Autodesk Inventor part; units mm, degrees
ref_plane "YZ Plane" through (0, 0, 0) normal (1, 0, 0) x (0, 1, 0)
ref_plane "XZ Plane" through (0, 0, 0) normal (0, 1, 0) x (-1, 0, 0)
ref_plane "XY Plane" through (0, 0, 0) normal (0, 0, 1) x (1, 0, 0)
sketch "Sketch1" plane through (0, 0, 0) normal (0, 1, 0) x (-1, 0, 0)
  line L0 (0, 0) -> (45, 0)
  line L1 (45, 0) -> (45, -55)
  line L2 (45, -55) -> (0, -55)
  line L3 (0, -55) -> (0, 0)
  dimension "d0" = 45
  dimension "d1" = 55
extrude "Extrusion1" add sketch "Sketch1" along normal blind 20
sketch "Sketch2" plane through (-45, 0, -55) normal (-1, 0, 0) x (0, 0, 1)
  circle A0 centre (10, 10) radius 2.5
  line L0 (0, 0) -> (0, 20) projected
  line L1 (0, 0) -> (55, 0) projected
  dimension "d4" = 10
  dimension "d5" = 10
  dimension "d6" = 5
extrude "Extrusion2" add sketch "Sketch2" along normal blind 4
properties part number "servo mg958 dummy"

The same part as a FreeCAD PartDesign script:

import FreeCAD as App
import Part
import Sketcher

V = App.Vector
Q = App.Units.Quantity


def add_polygon(sketch, points):
    """Adds a closed chain of lines whose ends are joined by coincident constraints."""
    first, n = sketch.GeometryCount, len(points)
    for a, b in zip(points, points[1:] + points[:1]):
        sketch.addGeometry(Part.LineSegment(App.Vector(*a, 0), App.Vector(*b, 0)), False)
    for i in range(n):
        sketch.addConstraint(Sketcher.Constraint("Coincident", first + i, 2, first + (i + 1) % n, 1))

doc = App.newDocument("Part")
params = doc.addObject("Spreadsheet::Sheet", "Params")
for row, (alias, value) in enumerate([
    ("sketch1_width", "45 mm"),
    ("sketch1_height", "55 mm"),
    ("pad1_length", "20 mm"),
    ("sketch2_diameter", "5 mm"),
    ("pad2_length", "4 mm"),
], start=1):
    params.set(f"A{row}", alias)
    params.set(f"B{row}", "=" + value)
    params.setAlias(f"B{row}", alias)

body = doc.addObject("PartDesign::Body", "Body")

# Sketch on XZ plane
sketch1 = body.newObject("Sketcher::SketchObject", "Sketch")
sketch1.AttachmentSupport = (doc.getObject("XZ_Plane"), [""])
sketch1.MapMode = "FlatFace"
add_polygon(sketch1, [(-45, 0), (0, 0), (0, -55), (-45, -55)])  # lines 0-3
sketch1.addConstraint([
    Sketcher.Constraint("Horizontal", 0),
    Sketcher.Constraint("Vertical", 1),
    Sketcher.Constraint("Horizontal", 2),
    Sketcher.Constraint("Vertical", 3),
    Sketcher.Constraint("Coincident", 0, 2, -1, 1),
    Sketcher.Constraint("DistanceX", 0, 1, 0, 2, Q("45 mm")),
    Sketcher.Constraint("DistanceY", 1, 2, 1, 1, Q("55 mm")),
])
sketch1.setExpression("Constraints[9]", "Params.sketch1_width")
sketch1.setExpression("Constraints[10]", "Params.sketch1_height")
pad1 = body.newObject("PartDesign::Pad", "Pad")
pad1.Profile = sketch1
pad1.setExpression("Length", "Params.pad1_length")
pad1.Reversed = True

# Sketch on YZ plane
sketch2 = body.newObject("Sketcher::SketchObject", "Sketch001")
sketch2.AttachmentSupport = (doc.getObject("YZ_Plane"), [""])
sketch2.MapMode = "FlatFace"
sketch2.AttachmentOffset = App.Placement(V(0, 0, -45), App.Rotation())
sketch2.addGeometry(Part.Circle(V(10, -45, 0), V(0, 0, 1), 2.5), False)
sketch2.addConstraint([
    Sketcher.Constraint("Diameter", 0, Q("5 mm")),
    Sketcher.Constraint("DistanceX", -1, 1, 0, 3, Q("10 mm")),
    Sketcher.Constraint("DistanceY", 0, 3, -1, 1, Q("45 mm")),
])
sketch2.setExpression("Constraints[0]", "Params.sketch2_diameter")
pad2 = body.newObject("PartDesign::Pad", "Pad001")
pad2.Profile = sketch2
pad2.setExpression("Length", "Params.pad2_length")
pad2.Reversed = True

doc.recompute()
